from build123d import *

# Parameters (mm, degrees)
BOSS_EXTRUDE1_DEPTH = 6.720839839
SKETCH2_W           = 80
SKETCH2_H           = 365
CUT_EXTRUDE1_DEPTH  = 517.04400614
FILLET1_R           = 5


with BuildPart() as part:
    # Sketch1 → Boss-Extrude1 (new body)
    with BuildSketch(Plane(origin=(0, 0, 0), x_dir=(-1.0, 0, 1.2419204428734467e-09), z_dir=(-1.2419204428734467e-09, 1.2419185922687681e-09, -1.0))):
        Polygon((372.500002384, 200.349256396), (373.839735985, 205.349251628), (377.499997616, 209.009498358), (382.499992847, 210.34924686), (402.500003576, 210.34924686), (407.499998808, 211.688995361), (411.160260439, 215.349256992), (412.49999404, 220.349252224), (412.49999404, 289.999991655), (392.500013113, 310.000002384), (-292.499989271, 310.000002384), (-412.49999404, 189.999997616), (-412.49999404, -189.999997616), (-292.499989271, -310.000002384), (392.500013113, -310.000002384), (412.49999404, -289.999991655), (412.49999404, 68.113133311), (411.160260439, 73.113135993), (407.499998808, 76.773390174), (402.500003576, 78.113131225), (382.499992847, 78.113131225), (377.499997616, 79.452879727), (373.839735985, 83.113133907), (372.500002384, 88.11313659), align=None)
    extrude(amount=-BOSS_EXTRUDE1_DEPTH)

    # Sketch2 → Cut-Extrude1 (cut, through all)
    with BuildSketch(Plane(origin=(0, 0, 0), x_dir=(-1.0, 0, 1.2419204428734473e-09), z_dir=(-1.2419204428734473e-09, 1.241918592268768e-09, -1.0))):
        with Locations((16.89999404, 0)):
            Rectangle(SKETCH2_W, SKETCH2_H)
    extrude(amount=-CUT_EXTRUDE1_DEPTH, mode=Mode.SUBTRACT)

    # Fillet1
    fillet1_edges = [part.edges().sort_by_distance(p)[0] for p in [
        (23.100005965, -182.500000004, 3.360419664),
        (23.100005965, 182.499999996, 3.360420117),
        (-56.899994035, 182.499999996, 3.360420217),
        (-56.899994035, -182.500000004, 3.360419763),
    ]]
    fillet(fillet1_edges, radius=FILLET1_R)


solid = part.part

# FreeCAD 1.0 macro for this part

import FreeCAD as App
import Part
import Sketcher
Q = App.Units.Quantity


def edges_at(feature, points):
    """Names of the edges that pass closest to the given points."""
    edges = feature.Shape.Edges
    near = lambda p: min(range(len(edges)), key=lambda i: edges[i].distToShape(Part.Vertex(*p))[0])
    return sorted({f"Edge{near(p) + 1}" for p in points})

doc = App.newDocument("Part")
body = doc.addObject("PartDesign::Body", "Body")

sketch1 = doc.addObject("Sketcher::SketchObject", "Sketch")
body.addObject(sketch1)
sketch1.AttachmentSupport = (doc.XY_Plane, [""])
sketch1.MapMode = "FlatFace"
sketch1.addGeometry(Part.LineSegment(App.Vector(-372.500002, 200.349256, 0), App.Vector(-373.839736, 205.349252, 0)), False)
sketch1.addGeometry(Part.LineSegment(App.Vector(-373.839736, 205.349252, 0), App.Vector(-377.499998, 209.009498, 0)), False)
sketch1.addGeometry(Part.LineSegment(App.Vector(-377.499998, 209.009498, 0), App.Vector(-382.499993, 210.349247, 0)), False)
sketch1.addGeometry(Part.LineSegment(App.Vector(-382.499993, 210.349247, 0), App.Vector(-402.500004, 210.349247, 0)), False)
sketch1.addGeometry(Part.LineSegment(App.Vector(-402.500004, 210.349247, 0), App.Vector(-407.499999, 211.688995, 0)), False)
sketch1.addGeometry(Part.LineSegment(App.Vector(-407.499999, 211.688995, 0), App.Vector(-411.16026, 215.349257, 0)), False)
sketch1.addGeometry(Part.LineSegment(App.Vector(-411.16026, 215.349257, 0), App.Vector(-412.499994, 220.349252, 0)), False)
sketch1.addGeometry(Part.LineSegment(App.Vector(-412.499994, 220.349252, 0), App.Vector(-412.499994, 289.999992, 0)), False)
sketch1.addGeometry(Part.LineSegment(App.Vector(-412.499994, 289.999992, 0), App.Vector(-392.500013, 310.000002, 0)), False)
sketch1.addGeometry(Part.LineSegment(App.Vector(-392.500013, 310.000002, 0), App.Vector(292.499989, 310.000002, 0)), False)
sketch1.addGeometry(Part.LineSegment(App.Vector(292.499989, 310.000002, 0), App.Vector(412.499994, 189.999998, 0)), False)
sketch1.addGeometry(Part.LineSegment(App.Vector(412.499994, 189.999998, 0), App.Vector(412.499994, -189.999998, 0)), False)
sketch1.addGeometry(Part.LineSegment(App.Vector(412.499994, -189.999998, 0), App.Vector(292.499989, -310.000002, 0)), False)
sketch1.addGeometry(Part.LineSegment(App.Vector(292.499989, -310.000002, 0), App.Vector(-392.500013, -310.000002, 0)), False)
sketch1.addGeometry(Part.LineSegment(App.Vector(-392.500013, -310.000002, 0), App.Vector(-412.499994, -289.999992, 0)), False)
sketch1.addGeometry(Part.LineSegment(App.Vector(-412.499994, -289.999992, 0), App.Vector(-412.499994, 68.113133, 0)), False)
sketch1.addGeometry(Part.LineSegment(App.Vector(-412.499994, 68.113133, 0), App.Vector(-411.16026, 73.113136, 0)), False)
sketch1.addGeometry(Part.LineSegment(App.Vector(-411.16026, 73.113136, 0), App.Vector(-407.499999, 76.77339, 0)), False)
sketch1.addGeometry(Part.LineSegment(App.Vector(-407.499999, 76.77339, 0), App.Vector(-402.500004, 78.113131, 0)), False)
sketch1.addGeometry(Part.LineSegment(App.Vector(-402.500004, 78.113131, 0), App.Vector(-382.499993, 78.113131, 0)), False)
sketch1.addGeometry(Part.LineSegment(App.Vector(-382.499993, 78.113131, 0), App.Vector(-377.499998, 79.45288, 0)), False)
sketch1.addGeometry(Part.LineSegment(App.Vector(-377.499998, 79.45288, 0), App.Vector(-373.839736, 83.113134, 0)), False)
sketch1.addGeometry(Part.LineSegment(App.Vector(-373.839736, 83.113134, 0), App.Vector(-372.500002, 88.113137, 0)), False)
sketch1.addGeometry(Part.LineSegment(App.Vector(-372.500002, 88.113137, 0), App.Vector(-372.500002, 200.349256, 0)), False)
sketch1.addConstraint(Sketcher.Constraint("Coincident", 0, 2, 1, 1))
sketch1.addConstraint(Sketcher.Constraint("Coincident", 1, 2, 2, 1))
sketch1.addConstraint(Sketcher.Constraint("Coincident", 2, 2, 3, 1))
sketch1.addConstraint(Sketcher.Constraint("Coincident", 3, 2, 4, 1))
sketch1.addConstraint(Sketcher.Constraint("Coincident", 4, 2, 5, 1))
sketch1.addConstraint(Sketcher.Constraint("Coincident", 5, 2, 6, 1))
sketch1.addConstraint(Sketcher.Constraint("Coincident", 6, 2, 7, 1))
sketch1.addConstraint(Sketcher.Constraint("Coincident", 7, 2, 8, 1))
sketch1.addConstraint(Sketcher.Constraint("Coincident", 8, 2, 9, 1))
sketch1.addConstraint(Sketcher.Constraint("Coincident", 9, 2, 10, 1))
sketch1.addConstraint(Sketcher.Constraint("Coincident", 10, 2, 11, 1))
sketch1.addConstraint(Sketcher.Constraint("Coincident", 11, 2, 12, 1))
sketch1.addConstraint(Sketcher.Constraint("Coincident", 12, 2, 13, 1))
sketch1.addConstraint(Sketcher.Constraint("Coincident", 13, 2, 14, 1))
sketch1.addConstraint(Sketcher.Constraint("Coincident", 14, 2, 15, 1))
sketch1.addConstraint(Sketcher.Constraint("Coincident", 15, 2, 16, 1))
sketch1.addConstraint(Sketcher.Constraint("Coincident", 16, 2, 17, 1))
sketch1.addConstraint(Sketcher.Constraint("Coincident", 17, 2, 18, 1))
sketch1.addConstraint(Sketcher.Constraint("Coincident", 18, 2, 19, 1))
sketch1.addConstraint(Sketcher.Constraint("Coincident", 19, 2, 20, 1))
sketch1.addConstraint(Sketcher.Constraint("Coincident", 20, 2, 21, 1))
sketch1.addConstraint(Sketcher.Constraint("Coincident", 21, 2, 22, 1))
sketch1.addConstraint(Sketcher.Constraint("Coincident", 22, 2, 23, 1))
sketch1.addConstraint(Sketcher.Constraint("Coincident", 23, 2, 0, 1))
sketch1.addConstraint(Sketcher.Constraint("Horizontal", 3))
sketch1.addConstraint(Sketcher.Constraint("Vertical", 7))
sketch1.addConstraint(Sketcher.Constraint("Horizontal", 9))
sketch1.addConstraint(Sketcher.Constraint("Vertical", 11))
sketch1.addConstraint(Sketcher.Constraint("Horizontal", 13))
sketch1.addConstraint(Sketcher.Constraint("Vertical", 15))
sketch1.addConstraint(Sketcher.Constraint("Horizontal", 19))
sketch1.addConstraint(Sketcher.Constraint("Vertical", 23))
sketch1.addConstraint(Sketcher.Constraint("DistanceX", 4, 2, 1, 2, Q("30.000001 mm")))
sketch1.addConstraint(Sketcher.Constraint("DistanceX", 6, 2, 2, 2, Q("30.000001 mm")))
sketch1.addConstraint(Sketcher.Constraint("DistanceY", 11, 2, 9, 2, Q("500 mm")))
sketch1.addConstraint(Sketcher.Constraint("DistanceY", 12, 2, 10, 2, Q("500 mm")))
sketch1.addConstraint(Sketcher.Constraint("DistanceX", 14, 2, 2, 2, Q("30.000001 mm")))
sketch1.addConstraint(Sketcher.Constraint("DistanceX", 15, 2, 19, 2, Q("30.000001 mm")))
sketch1.addConstraint(Sketcher.Constraint("DistanceX", 17, 2, 20, 2, Q("30.000001 mm")))
sketch1.addConstraint(Sketcher.Constraint("DistanceX", 18, 2, 22, 2, Q("30.000001 mm")))
sketch1.addConstraint(Sketcher.Constraint("DistanceX", 3, 2, 23, 2, Q("30.000001 mm")))
sketch1.addConstraint(Sketcher.Constraint("DistanceX", 4, 2, -1, 1, Q("407.499999 mm")))
sketch1.addConstraint(Sketcher.Constraint("DistanceX", 17, 2, -1, 1, Q("407.499999 mm")))
sketch1.addConstraint(Sketcher.Constraint("DistanceX", 3, 2, 3, 1, Q("20.000011 mm")))
sketch1.addConstraint(Sketcher.Constraint("DistanceY", 7, 1, 7, 2, Q("69.650739 mm")))
sketch1.addConstraint(Sketcher.Constraint("DistanceY", 23, 1, 23, 2, Q("112.23612 mm")))
sketch1.addConstraint(Sketcher.Constraint("DistanceY", -1, 1, 1, 2, Q("209.009498 mm")))
sketch1.addConstraint(Sketcher.Constraint("DistanceY", 10, 2, 1, 2, Q("19.009501 mm")))
sketch1.addConstraint(Sketcher.Constraint("Distance", 1, Q("5.176381 mm")))
sketch1.addConstraint(Sketcher.Constraint("Distance", 5, Q("5.176392 mm")))
sketch1.addConstraint(Sketcher.Constraint("Distance", 16, Q("5.17638 mm")))
sketch1.addConstraint(Sketcher.Constraint("Distance", 22, Q("5.17638 mm")))
sketch1.addConstraint(Sketcher.Constraint("DistanceX", 9, 1, 9, 2, Q("685.000002 mm")))
sketch1.addConstraint(Sketcher.Constraint("DistanceX", 13, 2, 13, 1, Q("685.000002 mm")))
sketch1.addConstraint(Sketcher.Constraint("DistanceY", 11, 2, 11, 1, Q("379.999995 mm")))
sketch1.addConstraint(Sketcher.Constraint("DistanceY", 15, 1, 15, 2, Q("358.113125 mm")))
sketch1.addConstraint(Sketcher.Constraint("DistanceY", -1, 1, 0, 2, Q("205.349252 mm")))
sketch1.addConstraint(Sketcher.Constraint("DistanceX", 5, 2, -1, 1, Q("411.16026 mm")))
sketch1.addConstraint(Sketcher.Constraint("DistanceY", -1, 1, 7, 2, Q("289.999992 mm")))
sketch1.addConstraint(Sketcher.Constraint("DistanceX", -1, 1, 9, 2, Q("292.499989 mm")))
sketch1.addConstraint(Sketcher.Constraint("DistanceX", -1, 1, 12, 2, Q("292.499989 mm")))
sketch1.addConstraint(Sketcher.Constraint("DistanceY", 14, 2, -1, 1, Q("289.999992 mm")))
sketch1.addConstraint(Sketcher.Constraint("DistanceX", 16, 2, -1, 1, Q("411.16026 mm")))
sketch1.addConstraint(Sketcher.Constraint("DistanceY", -1, 1, 17, 2, Q("76.77339 mm")))
sketch1.addConstraint(Sketcher.Constraint("DistanceY", -1, 1, 18, 2, Q("78.113131 mm")))
sketch1.addConstraint(Sketcher.Constraint("DistanceY", -1, 1, 20, 2, Q("79.45288 mm")))
sketch1.addConstraint(Sketcher.Constraint("DistanceY", 1, 2, 2, 2, Q("1.339749 mm")))
sketch1.addConstraint(Sketcher.Constraint("DistanceY", 3, 2, 4, 2, Q("1.339749 mm")))
sketch1.addConstraint(Sketcher.Constraint("DistanceX", 7, 2, 8, 2, Q("19.999981 mm")))
sketch1.addConstraint(Sketcher.Constraint("DistanceX", 0, 2, 10, 2, Q("786.33973 mm")))
sketch1.addConstraint(Sketcher.Constraint("DistanceX", 20, 2, 21, 2, Q("3.660262 mm")))
sketch1.addConstraint(Sketcher.Constraint("DistanceY", 23, 2, 1, 2, Q("8.660242 mm")))
pad1 = doc.addObject("PartDesign::Pad", "Pad")
body.addObject(pad1)
pad1.Profile = sketch1
pad1.Length = 6.72084

sketch2 = doc.addObject("Sketcher::SketchObject", "Sketch001")
body.addObject(sketch2)
sketch2.AttachmentSupport = (doc.XY_Plane, [""])
sketch2.MapMode = "FlatFace"
sketch2.addGeometry(Part.LineSegment(App.Vector(23, 182, 0), App.Vector(23, -182, 0)), False)
sketch2.addGeometry(Part.LineSegment(App.Vector(23, -182, 0), App.Vector(-57, -182, 0)), False)
sketch2.addGeometry(Part.LineSegment(App.Vector(-57, -182, 0), App.Vector(-57, 182, 0)), False)
sketch2.addGeometry(Part.LineSegment(App.Vector(-57, 182, 0), App.Vector(23, 182, 0)), False)
sketch2.addConstraint(Sketcher.Constraint("Coincident", 0, 2, 1, 1))
sketch2.addConstraint(Sketcher.Constraint("Coincident", 1, 2, 2, 1))
sketch2.addConstraint(Sketcher.Constraint("Coincident", 2, 2, 3, 1))
sketch2.addConstraint(Sketcher.Constraint("Coincident", 3, 2, 0, 1))
sketch2.addConstraint(Sketcher.Constraint("Vertical", 0))
sketch2.addConstraint(Sketcher.Constraint("Horizontal", 1))
sketch2.addConstraint(Sketcher.Constraint("Vertical", 2))
sketch2.addConstraint(Sketcher.Constraint("Horizontal", 3))
sketch2.addConstraint(Sketcher.Constraint("DistanceX", 1, 2, 1, 1, Q("80 mm")))
sketch2.addConstraint(Sketcher.Constraint("DistanceY", 0, 2, 0, 1, Q("365 mm")))
sketch2.addConstraint(Sketcher.Constraint("DistanceY", 0, 2, -1, 1, Q("182.5 mm")))
sketch2.addConstraint(Sketcher.Constraint("DistanceX", -1, 1, 0, 2, Q("23.100006 mm")))
pocket1 = doc.addObject("PartDesign::Pocket", "Pocket")
body.addObject(pocket1)
pocket1.Profile = sketch2
pocket1.Type = "ThroughAll"
pocket1.Reversed = True
doc.recompute()

fillet = doc.addObject("PartDesign::Fillet", "Fillet")
body.addObject(fillet)
fillet.Base = (pocket1, edges_at(pocket1, [
    (23.1, -182.5, 3.36),
    (23.1, 182.5, 3.36),
    (-56.9, 182.5, 3.36),
    (-56.9, -182.5, 3.36),
]))
fillet.Radius = 5

doc.recompute()
